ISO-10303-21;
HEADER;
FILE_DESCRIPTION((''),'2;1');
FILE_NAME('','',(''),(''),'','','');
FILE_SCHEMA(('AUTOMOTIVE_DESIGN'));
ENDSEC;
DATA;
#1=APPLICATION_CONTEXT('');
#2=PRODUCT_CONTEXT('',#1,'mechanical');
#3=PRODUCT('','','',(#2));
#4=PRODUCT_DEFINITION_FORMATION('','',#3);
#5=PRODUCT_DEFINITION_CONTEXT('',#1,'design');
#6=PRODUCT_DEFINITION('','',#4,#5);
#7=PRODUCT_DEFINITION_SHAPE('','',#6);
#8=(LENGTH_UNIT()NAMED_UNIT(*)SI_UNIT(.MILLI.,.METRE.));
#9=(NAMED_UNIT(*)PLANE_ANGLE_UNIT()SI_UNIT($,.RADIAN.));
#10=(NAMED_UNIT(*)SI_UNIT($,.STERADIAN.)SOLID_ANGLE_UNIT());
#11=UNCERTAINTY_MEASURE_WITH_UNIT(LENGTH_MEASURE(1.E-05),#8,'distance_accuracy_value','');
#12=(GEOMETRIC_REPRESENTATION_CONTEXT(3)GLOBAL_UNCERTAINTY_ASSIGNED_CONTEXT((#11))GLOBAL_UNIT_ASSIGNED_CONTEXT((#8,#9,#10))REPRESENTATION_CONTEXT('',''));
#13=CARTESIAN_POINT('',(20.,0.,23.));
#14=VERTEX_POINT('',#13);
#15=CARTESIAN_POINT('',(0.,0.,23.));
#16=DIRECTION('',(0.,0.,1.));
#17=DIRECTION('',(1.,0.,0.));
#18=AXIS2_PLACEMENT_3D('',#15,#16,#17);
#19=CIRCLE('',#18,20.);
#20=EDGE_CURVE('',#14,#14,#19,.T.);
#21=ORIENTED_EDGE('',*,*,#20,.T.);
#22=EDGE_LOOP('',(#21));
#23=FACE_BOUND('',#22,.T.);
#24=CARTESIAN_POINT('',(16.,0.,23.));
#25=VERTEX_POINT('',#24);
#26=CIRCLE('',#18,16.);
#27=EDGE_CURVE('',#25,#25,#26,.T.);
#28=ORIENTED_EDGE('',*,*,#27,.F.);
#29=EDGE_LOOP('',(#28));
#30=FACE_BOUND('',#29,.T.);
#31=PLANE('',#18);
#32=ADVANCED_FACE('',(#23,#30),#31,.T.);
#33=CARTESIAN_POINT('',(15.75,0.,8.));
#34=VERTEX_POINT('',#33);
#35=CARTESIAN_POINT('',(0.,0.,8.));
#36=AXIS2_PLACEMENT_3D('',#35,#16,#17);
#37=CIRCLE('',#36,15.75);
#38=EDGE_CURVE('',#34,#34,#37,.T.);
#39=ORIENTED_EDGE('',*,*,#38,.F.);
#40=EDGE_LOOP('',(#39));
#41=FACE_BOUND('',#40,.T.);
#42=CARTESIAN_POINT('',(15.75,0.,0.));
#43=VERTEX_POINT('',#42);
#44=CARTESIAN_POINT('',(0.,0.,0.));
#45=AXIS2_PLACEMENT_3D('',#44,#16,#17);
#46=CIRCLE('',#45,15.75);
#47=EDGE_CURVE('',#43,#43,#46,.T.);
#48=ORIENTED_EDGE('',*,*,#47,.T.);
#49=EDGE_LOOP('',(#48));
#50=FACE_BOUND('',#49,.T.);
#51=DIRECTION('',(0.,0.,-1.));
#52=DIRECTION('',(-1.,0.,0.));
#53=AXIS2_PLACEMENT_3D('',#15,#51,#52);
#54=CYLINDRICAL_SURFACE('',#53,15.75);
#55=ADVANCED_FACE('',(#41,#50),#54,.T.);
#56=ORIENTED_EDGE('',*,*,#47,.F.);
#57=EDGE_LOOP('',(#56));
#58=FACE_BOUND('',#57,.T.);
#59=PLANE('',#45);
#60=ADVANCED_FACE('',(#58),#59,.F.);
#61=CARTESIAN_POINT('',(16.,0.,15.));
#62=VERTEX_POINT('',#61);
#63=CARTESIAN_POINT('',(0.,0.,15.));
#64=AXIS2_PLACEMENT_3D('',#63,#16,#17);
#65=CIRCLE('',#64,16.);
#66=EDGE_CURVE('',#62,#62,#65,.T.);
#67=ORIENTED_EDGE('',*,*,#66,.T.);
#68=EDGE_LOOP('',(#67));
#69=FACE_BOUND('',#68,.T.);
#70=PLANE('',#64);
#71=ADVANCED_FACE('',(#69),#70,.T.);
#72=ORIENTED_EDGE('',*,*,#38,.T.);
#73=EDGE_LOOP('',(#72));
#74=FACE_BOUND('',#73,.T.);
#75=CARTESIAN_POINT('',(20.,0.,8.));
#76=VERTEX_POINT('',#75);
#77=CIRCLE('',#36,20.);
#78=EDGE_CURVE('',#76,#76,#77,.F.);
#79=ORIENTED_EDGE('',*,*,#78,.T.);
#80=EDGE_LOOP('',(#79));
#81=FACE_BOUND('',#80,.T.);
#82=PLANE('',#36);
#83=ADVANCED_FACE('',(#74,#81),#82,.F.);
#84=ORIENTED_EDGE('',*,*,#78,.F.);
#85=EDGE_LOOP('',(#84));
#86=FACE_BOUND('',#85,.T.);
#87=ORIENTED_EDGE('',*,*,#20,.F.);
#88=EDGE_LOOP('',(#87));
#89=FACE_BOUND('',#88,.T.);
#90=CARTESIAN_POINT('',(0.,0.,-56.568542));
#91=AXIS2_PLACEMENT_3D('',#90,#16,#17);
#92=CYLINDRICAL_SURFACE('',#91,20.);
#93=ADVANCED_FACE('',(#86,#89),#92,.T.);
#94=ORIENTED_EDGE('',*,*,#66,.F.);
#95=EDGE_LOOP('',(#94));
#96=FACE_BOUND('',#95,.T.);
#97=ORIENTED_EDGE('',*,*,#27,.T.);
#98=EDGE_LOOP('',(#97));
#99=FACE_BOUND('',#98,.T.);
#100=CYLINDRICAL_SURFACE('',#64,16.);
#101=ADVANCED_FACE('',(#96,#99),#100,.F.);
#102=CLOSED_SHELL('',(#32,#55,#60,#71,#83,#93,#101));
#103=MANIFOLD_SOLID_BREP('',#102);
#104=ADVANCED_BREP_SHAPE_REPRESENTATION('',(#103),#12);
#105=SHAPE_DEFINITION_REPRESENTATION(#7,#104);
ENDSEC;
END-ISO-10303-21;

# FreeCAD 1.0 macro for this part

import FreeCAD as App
import Part
import Sketcher
from FreeCAD import Vector
Q = App.Units.Quantity

doc = App.newDocument("Part")
body = doc.addObject("PartDesign::Body", "Body")

# Sketch on XY plane
sketch1 = body.newObject("Sketcher::SketchObject", "Sketch")
sketch1.AttachmentSupport = (doc.getObject("XY_Plane"), [""])
sketch1.MapMode = "FlatFace"
sketch1.addGeometry(Part.Circle(Vector(0, 0, 0), Vector(0, 0, 1), 16), False)
sketch1.addConstraint([
    Sketcher.Constraint("Coincident", 0, 3, -1, 1),
    Sketcher.Constraint("Diameter", 0, Q("31.5 mm")),
])
pad1 = body.newObject("PartDesign::Pad", "Pad")
pad1.Profile = sketch1
pad1.Length = 23

# Sketch on XY plane
sketch2 = body.newObject("Sketcher::SketchObject", "Sketch001")
sketch2.AttachmentSupport = (doc.getObject("XY_Plane"), [""])
sketch2.MapMode = "FlatFace"
sketch2.AttachmentOffset = App.Placement(Vector(0, 0, 23), App.Rotation())
sketch2.addGeometry(Part.Circle(Vector(0, 0, 0), Vector(0, 0, 1), 20), False)
sketch2.addConstraint([
    Sketcher.Constraint("Coincident", 0, 3, -1, 1),
    Sketcher.Constraint("Diameter", 0, Q("40 mm")),
])
pad2 = body.newObject("PartDesign::Pad", "Pad001")
pad2.Profile = sketch2
pad2.Length = 15
pad2.Reversed = True

# Sketch on XY plane
sketch3 = body.newObject("Sketcher::SketchObject", "Sketch002")
sketch3.AttachmentSupport = (doc.getObject("XY_Plane"), [""])
sketch3.MapMode = "FlatFace"
sketch3.AttachmentOffset = App.Placement(Vector(0, 0, 23), App.Rotation())
sketch3.addGeometry(Part.Circle(Vector(0, 0, 0), Vector(0, 0, 1), 16), False)
sketch3.addConstraint([
    Sketcher.Constraint("Coincident", 0, 3, -1, 1),
    Sketcher.Constraint("Diameter", 0, Q("32 mm")),
])
pocket1 = body.newObject("PartDesign::Pocket", "Pocket")
pocket1.Profile = sketch3
pocket1.Length = 8

doc.recompute()
